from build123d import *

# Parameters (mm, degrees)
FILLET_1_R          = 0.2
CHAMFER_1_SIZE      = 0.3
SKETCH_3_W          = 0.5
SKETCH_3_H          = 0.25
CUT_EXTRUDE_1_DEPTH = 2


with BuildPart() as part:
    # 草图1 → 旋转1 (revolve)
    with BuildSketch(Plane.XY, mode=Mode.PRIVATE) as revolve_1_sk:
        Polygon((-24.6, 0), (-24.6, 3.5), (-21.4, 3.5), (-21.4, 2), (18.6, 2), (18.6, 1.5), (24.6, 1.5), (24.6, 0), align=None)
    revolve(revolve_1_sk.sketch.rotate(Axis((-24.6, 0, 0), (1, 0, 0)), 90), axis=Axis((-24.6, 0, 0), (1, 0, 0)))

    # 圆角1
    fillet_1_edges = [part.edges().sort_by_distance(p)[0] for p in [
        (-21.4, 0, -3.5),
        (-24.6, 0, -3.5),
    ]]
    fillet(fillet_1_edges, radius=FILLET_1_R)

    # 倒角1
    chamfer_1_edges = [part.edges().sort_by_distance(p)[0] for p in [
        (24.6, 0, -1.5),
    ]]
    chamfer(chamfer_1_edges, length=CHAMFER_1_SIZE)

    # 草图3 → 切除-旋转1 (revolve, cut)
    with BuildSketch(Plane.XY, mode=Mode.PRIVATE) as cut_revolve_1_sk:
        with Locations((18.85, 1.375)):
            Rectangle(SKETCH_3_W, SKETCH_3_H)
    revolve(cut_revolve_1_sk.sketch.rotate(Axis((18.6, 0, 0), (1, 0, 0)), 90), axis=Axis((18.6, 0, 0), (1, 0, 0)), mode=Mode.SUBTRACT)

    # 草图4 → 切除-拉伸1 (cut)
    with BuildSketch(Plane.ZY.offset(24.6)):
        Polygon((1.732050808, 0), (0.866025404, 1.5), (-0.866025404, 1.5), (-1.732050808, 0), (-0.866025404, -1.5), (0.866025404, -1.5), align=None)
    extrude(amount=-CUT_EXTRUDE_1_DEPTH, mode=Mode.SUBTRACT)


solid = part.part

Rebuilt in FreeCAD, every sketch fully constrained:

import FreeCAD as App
import Part
import Sketcher

V = App.Vector
Q = App.Units.Quantity


def edges_at(feature, points):
    """Names of the edges that pass closest to the given points."""
    edges = feature.Shape.Edges
    near = lambda p: min(range(len(edges)), key=lambda i: edges[i].distToShape(Part.Vertex(*p))[0])
    return sorted({f"Edge{near(p) + 1}" for p in points})


def add_polygon(sketch, points):
    """Adds a closed chain of lines whose ends are joined by coincident constraints."""
    first, n = sketch.GeometryCount, len(points)
    for a, b in zip(points, points[1:] + points[:1]):
        sketch.addGeometry(Part.LineSegment(App.Vector(*a, 0), App.Vector(*b, 0)), False)
    for i in range(n):
        sketch.addConstraint(Sketcher.Constraint("Coincident", first + i, 2, first + (i + 1) % n, 1))

doc = App.newDocument("Part")
body = doc.addObject("PartDesign::Body", "Body")

# Sketch on XY plane
sketch1 = doc.addObject("Sketcher::SketchObject", "Sketch")
body.addObject(sketch1)
sketch1.AttachmentSupport = (doc.XY_Plane, [""])
sketch1.MapMode = "FlatFace"
add_polygon(sketch1, [(-24.6, 3.5), (-24.6, 0), (24.6, 0), (24.6, 1.5), (18.6, 1.5), (18.6, 2), (-21.4, 2), (-21.4, 3.5)])  # lines 0-7
sketch1.addConstraint([
    Sketcher.Constraint("Vertical", 0),
    Sketcher.Constraint("Horizontal", 1),
    Sketcher.Constraint("Vertical", 2),
    Sketcher.Constraint("Horizontal", 3),
    Sketcher.Constraint("Vertical", 4),
    Sketcher.Constraint("Horizontal", 5),
    Sketcher.Constraint("Vertical", 6),
    Sketcher.Constraint("Horizontal", 7),
    Sketcher.Constraint("Symmetric", 0, 2, 1, 2, -1, 1),
    Sketcher.Constraint("Equal", 2, 6),
    Sketcher.Constraint("DistanceX", 3, 2, 3, 1, 6.0),
    Sketcher.Constraint("DistanceX", 5, 2, 5, 1, 40.0),
    Sketcher.Constraint("DistanceX", 1, 1, 1, 2, 49.2),
    Sketcher.Constraint("DistanceY", 0, 2, 0, 1, 3.5),
    Sketcher.Constraint("DistanceY", 2, 1, 2, 2, 1.5),
])
revolution = doc.addObject("PartDesign::Revolution", "Revolution")
body.addObject(revolution)
revolution.Profile = sketch1
revolution.ReferenceAxis = (sketch1, ["H_Axis"])
revolution.Angle = 360
doc.recompute()

fillet = doc.addObject("PartDesign::Fillet", "Fillet")
body.addObject(fillet)
fillet.Base = (revolution, edges_at(revolution, [(-21.4, 0, -3.5), (-24.6, 0, -3.5)]))
fillet.Radius = 0.2
doc.recompute()

chamfer = doc.addObject("PartDesign::Chamfer", "Chamfer")
body.addObject(chamfer)
chamfer.Base = (fillet, edges_at(fillet, [(24.6, 0, -1.5)]))
chamfer.Size = 0.3

# Sketch on XY plane
sketch2 = doc.addObject("Sketcher::SketchObject", "Sketch001")
body.addObject(sketch2)
sketch2.AttachmentSupport = (doc.XY_Plane, [""])
sketch2.MapMode = "FlatFace"
add_polygon(sketch2, [(18.6, 1.5), (18.6, 1.25), (19.1, 1.25), (19.1, 1.5)])  # lines 0-3
sketch2.addConstraint([
    Sketcher.Constraint("Vertical", 0),
    Sketcher.Constraint("Horizontal", 1),
    Sketcher.Constraint("Vertical", 2),
    Sketcher.Constraint("Horizontal", 3),
    Sketcher.Constraint("DistanceX", 1, 1, 1, 2, 0.5),
    Sketcher.Constraint("DistanceY", 0, 2, 0, 1, 0.25),
    Sketcher.Constraint("DistanceX", -1, 1, 0, 2, 18.6),
    Sketcher.Constraint("DistanceY", -1, 1, 2, 2, 1.5),
])
groove = doc.addObject("PartDesign::Groove", "Groove")
body.addObject(groove)
groove.Profile = sketch2
groove.ReferenceAxis = (sketch2, ["H_Axis"])
groove.Angle = 360

# Sketch on YZ plane
sketch3 = doc.addObject("Sketcher::SketchObject", "Sketch002")
body.addObject(sketch3)
sketch3.AttachmentSupport = (doc.YZ_Plane, [""])
sketch3.MapMode = "FlatFace"
sketch3.AttachmentOffset = App.Placement(V(0, 0, -24.6), App.Rotation())
add_polygon(sketch3, [(0, 1.732051), (1.5, 0.866025), (1.5, -0.866025), (0, -1.732051), (-1.5, -0.866025), (-1.5, 0.866025)])  # lines 0-5
sketch3.addConstraint([
    Sketcher.Constraint("Vertical", 1),
    Sketcher.Constraint("Vertical", 4),
    Sketcher.Constraint("Symmetric", 0, 2, 3, 2, -1, 1),
    Sketcher.Constraint("Symmetric", 2, 2, 5, 2, -1, 1),
    Sketcher.Constraint("PointOnObject", 2, 2, -2),
    Sketcher.Constraint("Parallel", 2, 5),
    Sketcher.Constraint("Horizontal", 1, 2, 3, 2),
    Sketcher.Constraint("Angle", 0, Q("-30 deg")),
    Sketcher.Constraint("DistanceX", 3, 2, 1, 2, 3.0),
    Sketcher.Constraint("DistanceY", 1, 2, 1, 1, 1.732051),
])
pocket1 = doc.addObject("PartDesign::Pocket", "Pocket")
body.addObject(pocket1)
pocket1.Profile = sketch3
pocket1.Length = 2
pocket1.Reversed = True

doc.recompute()
